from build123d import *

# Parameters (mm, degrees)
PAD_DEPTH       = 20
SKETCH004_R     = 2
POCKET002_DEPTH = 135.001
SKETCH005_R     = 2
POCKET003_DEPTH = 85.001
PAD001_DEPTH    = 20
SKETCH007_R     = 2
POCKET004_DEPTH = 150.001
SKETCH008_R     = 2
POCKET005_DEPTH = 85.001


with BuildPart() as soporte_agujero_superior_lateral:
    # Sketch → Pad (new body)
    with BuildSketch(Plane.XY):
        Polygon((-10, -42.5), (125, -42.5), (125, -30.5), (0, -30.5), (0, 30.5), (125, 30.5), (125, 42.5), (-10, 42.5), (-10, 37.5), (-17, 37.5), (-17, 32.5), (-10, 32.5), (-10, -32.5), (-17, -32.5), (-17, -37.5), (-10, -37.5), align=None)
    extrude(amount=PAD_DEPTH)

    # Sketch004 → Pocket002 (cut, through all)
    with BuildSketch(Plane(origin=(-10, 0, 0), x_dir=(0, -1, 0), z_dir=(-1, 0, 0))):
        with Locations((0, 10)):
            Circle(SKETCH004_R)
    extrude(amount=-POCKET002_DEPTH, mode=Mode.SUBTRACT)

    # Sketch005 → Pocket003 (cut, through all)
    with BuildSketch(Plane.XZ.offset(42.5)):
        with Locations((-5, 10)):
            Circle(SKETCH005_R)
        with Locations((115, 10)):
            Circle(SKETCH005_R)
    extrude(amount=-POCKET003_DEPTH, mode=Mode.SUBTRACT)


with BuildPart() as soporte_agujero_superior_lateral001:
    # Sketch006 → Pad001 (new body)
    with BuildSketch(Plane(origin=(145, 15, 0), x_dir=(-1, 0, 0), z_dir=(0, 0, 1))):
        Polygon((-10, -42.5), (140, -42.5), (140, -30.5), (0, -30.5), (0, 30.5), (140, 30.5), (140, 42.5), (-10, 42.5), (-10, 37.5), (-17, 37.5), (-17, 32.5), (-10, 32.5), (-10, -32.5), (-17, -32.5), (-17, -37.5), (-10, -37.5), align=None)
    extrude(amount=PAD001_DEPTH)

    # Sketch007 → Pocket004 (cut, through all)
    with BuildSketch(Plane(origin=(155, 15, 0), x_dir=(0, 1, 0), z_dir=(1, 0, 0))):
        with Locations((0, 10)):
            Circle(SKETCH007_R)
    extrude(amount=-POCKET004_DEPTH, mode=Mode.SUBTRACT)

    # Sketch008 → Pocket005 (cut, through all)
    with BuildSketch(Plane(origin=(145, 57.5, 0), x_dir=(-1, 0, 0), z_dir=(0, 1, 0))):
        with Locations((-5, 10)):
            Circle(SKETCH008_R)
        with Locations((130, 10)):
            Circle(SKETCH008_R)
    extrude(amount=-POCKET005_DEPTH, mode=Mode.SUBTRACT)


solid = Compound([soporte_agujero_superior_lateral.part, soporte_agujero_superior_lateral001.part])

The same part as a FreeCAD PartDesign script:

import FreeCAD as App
import Part
import Sketcher

V = App.Vector


def add_polygon(sketch, points):
    """Adds a closed chain of lines whose ends are joined by coincident constraints."""
    first, n = sketch.GeometryCount, len(points)
    for a, b in zip(points, points[1:] + points[:1]):
        sketch.addGeometry(Part.LineSegment(App.Vector(*a, 0), App.Vector(*b, 0)), False)
    for i in range(n):
        sketch.addConstraint(Sketcher.Constraint("Coincident", first + i, 2, first + (i + 1) % n, 1))

doc = App.newDocument("Part")
body = doc.addObject("PartDesign::Body", "Body")

# Sketch on XY plane
sketch1 = doc.addObject("Sketcher::SketchObject", "Sketch")
body.addObject(sketch1)
sketch1.AttachmentSupport = (doc.XY_Plane, [""])
sketch1.MapMode = "FlatFace"
add_polygon(sketch1, [(-10, -42.5), (125, -42.5), (125, -30.5), (0, -30.5), (0, 30.5), (125, 30.5), (125, 42.5), (-10, 42.5), (-10, 37.5), (-17, 37.5), (-17, 32.5), (-10, 32.5), (-10, -32.5), (-17, -32.5), (-17, -37.5), (-10, -37.5)])  # lines 0-15
sketch1.addConstraint([
    Sketcher.Constraint("Horizontal", 0),
    Sketcher.Constraint("Vertical", 1),
    Sketcher.Constraint("Horizontal", 2),
    Sketcher.Constraint("Vertical", 3),
    Sketcher.Constraint("Horizontal", 4),
    Sketcher.Constraint("Vertical", 5),
    Sketcher.Constraint("Horizontal", 6),
    Sketcher.Constraint("Vertical", 7),
    Sketcher.Constraint("Horizontal", 8),
    Sketcher.Constraint("Vertical", 9),
    Sketcher.Constraint("Horizontal", 10),
    Sketcher.Constraint("Vertical", 11),
    Sketcher.Constraint("Horizontal", 12),
    Sketcher.Constraint("Vertical", 13),
    Sketcher.Constraint("Horizontal", 14),
    Sketcher.Constraint("Vertical", 15),
    Sketcher.Constraint("Symmetric", 2, 2, 3, 2, -1, 1),
    Sketcher.Constraint("Symmetric", 0, 2, 5, 2, -1),
    Sketcher.Constraint("Symmetric", 9, 2, 12, 2, -1),
    Sketcher.Constraint("Symmetric", 7, 2, 14, 2, -1),
    Sketcher.Constraint("Vertical", 7, 2, 10, 2),
    Sketcher.Constraint("Equal", 7, 9),
    Sketcher.Constraint("DistanceX", 0, 1, 0, 2, 135.0),
    Sketcher.Constraint("DistanceX", 2, 2, 2, 1, 125.0),
    Sketcher.Constraint("DistanceX", 8, 2, 8, 1, 7.0),
    Sketcher.Constraint("DistanceY", 1, 1, 1, 2, 12.0),
    Sketcher.Constraint("DistanceY", 3, 1, 3, 2, 61.0),
    Sketcher.Constraint("DistanceY", 7, 2, 7, 1, 5.0),
])
pad1 = doc.addObject("PartDesign::Pad", "Pad")
body.addObject(pad1)
pad1.Profile = sketch1
pad1.Length = 20

# Sketch on YZ plane
sketch2 = doc.addObject("Sketcher::SketchObject", "Sketch001")
body.addObject(sketch2)
sketch2.AttachmentSupport = (doc.YZ_Plane, [""])
sketch2.MapMode = "FlatFace"
sketch2.AttachmentOffset = App.Placement(V(0, 0, -10), App.Rotation())
sketch2.addGeometry(Part.Circle(V(0, 10, 0), V(0, 0, 1), 2), False)
sketch2.addConstraint([
    Sketcher.Constraint("PointOnObject", 0, 3, -2),
    Sketcher.Constraint("Diameter", 0, 4.0),
    Sketcher.Constraint("DistanceY", -1, 1, 0, 3, 10.0),
])
pocket1 = doc.addObject("PartDesign::Pocket", "Pocket")
body.addObject(pocket1)
pocket1.Profile = sketch2
pocket1.Type = "ThroughAll"
pocket1.Reversed = True

# Sketch on XZ plane
sketch3 = doc.addObject("Sketcher::SketchObject", "Sketch002")
body.addObject(sketch3)
sketch3.AttachmentSupport = (doc.XZ_Plane, [""])
sketch3.MapMode = "FlatFace"
sketch3.AttachmentOffset = App.Placement(V(0, 0, 42.5), App.Rotation())
sketch3.addGeometry([
    Part.Circle(V(-5, 10, 0), V(0, 0, 1), 2),
    Part.Circle(V(115, 10, 0), V(0, 0, 1), 2),
], False)
sketch3.addConstraint([
    Sketcher.Constraint("Equal", 0, 1),
    Sketcher.Constraint("Horizontal", 0, 3, 1, 3),
    Sketcher.Constraint("Diameter", 0, 4.0),
    Sketcher.Constraint("DistanceX", 0, 3, -1, 1, 5.0),
    Sketcher.Constraint("DistanceY", -1, 1, 0, 3, 10.0),
    Sketcher.Constraint("DistanceX", -1, 1, 1, 3, 115.0),
])
pocket2 = doc.addObject("PartDesign::Pocket", "Pocket001")
body.addObject(pocket2)
pocket2.Profile = sketch3
pocket2.Type = "ThroughAll"
body2 = doc.addObject("PartDesign::Body", "Body001")

# Sketch on XY plane
sketch4 = doc.addObject("Sketcher::SketchObject", "Sketch003")
body2.addObject(sketch4)
sketch4.AttachmentSupport = (doc.getObject("XY_Plane001"), [""])
sketch4.MapMode = "FlatFace"
add_polygon(sketch4, [(155, 57.5), (5, 57.5), (5, 45.5), (145, 45.5), (145, -15.5), (5, -15.5), (5, -27.5), (155, -27.5), (155, -22.5), (162, -22.5), (162, -17.5), (155, -17.5), (155, 47.5), (162, 47.5), (162, 52.5), (155, 52.5)])  # lines 0-15
sketch4.addConstraint([
    Sketcher.Constraint("Horizontal", 0),
    Sketcher.Constraint("Vertical", 1),
    Sketcher.Constraint("Horizontal", 2),
    Sketcher.Constraint("Vertical", 3),
    Sketcher.Constraint("Horizontal", 4),
    Sketcher.Constraint("Vertical", 5),
    Sketcher.Constraint("Horizontal", 6),
    Sketcher.Constraint("Vertical", 7),
    Sketcher.Constraint("Horizontal", 8),
    Sketcher.Constraint("Vertical", 9),
    Sketcher.Constraint("Horizontal", 10),
    Sketcher.Constraint("Vertical", 11),
    Sketcher.Constraint("Horizontal", 12),
    Sketcher.Constraint("Vertical", 13),
    Sketcher.Constraint("Horizontal", 14),
    Sketcher.Constraint("Vertical", 15),
    Sketcher.Constraint("Vertical", 1, 2, 4, 2),
    Sketcher.Constraint("Vertical", 7, 2, 10, 2),
    Sketcher.Constraint("Vertical", 9, 2, 12, 2),
    Sketcher.Constraint("Vertical", 11, 2, 14, 2),
    Sketcher.Constraint("Equal", 1, 5),
    Sketcher.Constraint("Equal", 7, 9),
    Sketcher.Constraint("Equal", 9, 13),
    Sketcher.Constraint("Equal", 13, 15),
    Sketcher.Constraint("DistanceX", 0, 2, 0, 1, 150.0),
    Sketcher.Constraint("DistanceX", 2, 1, 2, 2, 140.0),
    Sketcher.Constraint("DistanceX", 8, 1, 8, 2, 7.0),
    Sketcher.Constraint("DistanceY", 1, 2, 1, 1, 12.0),
    Sketcher.Constraint("DistanceY", 3, 2, 3, 1, 61.0),
    Sketcher.Constraint("DistanceY", 7, 1, 7, 2, 5.0),
    Sketcher.Constraint("DistanceX", -1, 1, 0, 2, 5.0),
    Sketcher.Constraint("DistanceY", -1, 1, 0, 2, 57.5),
])
pad2 = doc.addObject("PartDesign::Pad", "Pad001")
body2.addObject(pad2)
pad2.Profile = sketch4
pad2.Length = 20

# Sketch on YZ plane
sketch5 = doc.addObject("Sketcher::SketchObject", "Sketch004")
body2.addObject(sketch5)
sketch5.AttachmentSupport = (doc.getObject("YZ_Plane001"), [""])
sketch5.MapMode = "FlatFace"
sketch5.AttachmentOffset = App.Placement(V(0, 0, 155), App.Rotation())
sketch5.addGeometry(Part.Circle(V(15, 10, 0), V(0, 0, 1), 2), False)
sketch5.addConstraint([
    Sketcher.Constraint("Diameter", 0, 4.0),
    Sketcher.Constraint("DistanceX", -1, 1, 0, 3, 15.0),
    Sketcher.Constraint("DistanceY", -1, 1, 0, 3, 10.0),
])
pocket3 = doc.addObject("PartDesign::Pocket", "Pocket002")
body2.addObject(pocket3)
pocket3.Profile = sketch5
pocket3.Type = "ThroughAll"

# Sketch on XZ plane
sketch6 = doc.addObject("Sketcher::SketchObject", "Sketch005")
body2.addObject(sketch6)
sketch6.AttachmentSupport = (doc.getObject("XZ_Plane001"), [""])
sketch6.MapMode = "FlatFace"
sketch6.AttachmentOffset = App.Placement(V(0, 0, -57.5), App.Rotation())
sketch6.addGeometry([
    Part.Circle(V(150, 10, 0), V(0, 0, 1), 2),
    Part.Circle(V(15, 10, 0), V(0, 0, 1), 2),
], False)
sketch6.addConstraint([
    Sketcher.Constraint("Equal", 0, 1),
    Sketcher.Constraint("Horizontal", 0, 3, 1, 3),
    Sketcher.Constraint("Diameter", 0, 4.0),
    Sketcher.Constraint("DistanceX", -1, 1, 0, 3, 150.0),
    Sketcher.Constraint("DistanceY", -1, 1, 0, 3, 10.0),
    Sketcher.Constraint("DistanceX", -1, 1, 1, 3, 15.0),
])
pocket4 = doc.addObject("PartDesign::Pocket", "Pocket003")
body2.addObject(pocket4)
pocket4.Profile = sketch6
pocket4.Type = "ThroughAll"
pocket4.Reversed = True

doc.recompute()
